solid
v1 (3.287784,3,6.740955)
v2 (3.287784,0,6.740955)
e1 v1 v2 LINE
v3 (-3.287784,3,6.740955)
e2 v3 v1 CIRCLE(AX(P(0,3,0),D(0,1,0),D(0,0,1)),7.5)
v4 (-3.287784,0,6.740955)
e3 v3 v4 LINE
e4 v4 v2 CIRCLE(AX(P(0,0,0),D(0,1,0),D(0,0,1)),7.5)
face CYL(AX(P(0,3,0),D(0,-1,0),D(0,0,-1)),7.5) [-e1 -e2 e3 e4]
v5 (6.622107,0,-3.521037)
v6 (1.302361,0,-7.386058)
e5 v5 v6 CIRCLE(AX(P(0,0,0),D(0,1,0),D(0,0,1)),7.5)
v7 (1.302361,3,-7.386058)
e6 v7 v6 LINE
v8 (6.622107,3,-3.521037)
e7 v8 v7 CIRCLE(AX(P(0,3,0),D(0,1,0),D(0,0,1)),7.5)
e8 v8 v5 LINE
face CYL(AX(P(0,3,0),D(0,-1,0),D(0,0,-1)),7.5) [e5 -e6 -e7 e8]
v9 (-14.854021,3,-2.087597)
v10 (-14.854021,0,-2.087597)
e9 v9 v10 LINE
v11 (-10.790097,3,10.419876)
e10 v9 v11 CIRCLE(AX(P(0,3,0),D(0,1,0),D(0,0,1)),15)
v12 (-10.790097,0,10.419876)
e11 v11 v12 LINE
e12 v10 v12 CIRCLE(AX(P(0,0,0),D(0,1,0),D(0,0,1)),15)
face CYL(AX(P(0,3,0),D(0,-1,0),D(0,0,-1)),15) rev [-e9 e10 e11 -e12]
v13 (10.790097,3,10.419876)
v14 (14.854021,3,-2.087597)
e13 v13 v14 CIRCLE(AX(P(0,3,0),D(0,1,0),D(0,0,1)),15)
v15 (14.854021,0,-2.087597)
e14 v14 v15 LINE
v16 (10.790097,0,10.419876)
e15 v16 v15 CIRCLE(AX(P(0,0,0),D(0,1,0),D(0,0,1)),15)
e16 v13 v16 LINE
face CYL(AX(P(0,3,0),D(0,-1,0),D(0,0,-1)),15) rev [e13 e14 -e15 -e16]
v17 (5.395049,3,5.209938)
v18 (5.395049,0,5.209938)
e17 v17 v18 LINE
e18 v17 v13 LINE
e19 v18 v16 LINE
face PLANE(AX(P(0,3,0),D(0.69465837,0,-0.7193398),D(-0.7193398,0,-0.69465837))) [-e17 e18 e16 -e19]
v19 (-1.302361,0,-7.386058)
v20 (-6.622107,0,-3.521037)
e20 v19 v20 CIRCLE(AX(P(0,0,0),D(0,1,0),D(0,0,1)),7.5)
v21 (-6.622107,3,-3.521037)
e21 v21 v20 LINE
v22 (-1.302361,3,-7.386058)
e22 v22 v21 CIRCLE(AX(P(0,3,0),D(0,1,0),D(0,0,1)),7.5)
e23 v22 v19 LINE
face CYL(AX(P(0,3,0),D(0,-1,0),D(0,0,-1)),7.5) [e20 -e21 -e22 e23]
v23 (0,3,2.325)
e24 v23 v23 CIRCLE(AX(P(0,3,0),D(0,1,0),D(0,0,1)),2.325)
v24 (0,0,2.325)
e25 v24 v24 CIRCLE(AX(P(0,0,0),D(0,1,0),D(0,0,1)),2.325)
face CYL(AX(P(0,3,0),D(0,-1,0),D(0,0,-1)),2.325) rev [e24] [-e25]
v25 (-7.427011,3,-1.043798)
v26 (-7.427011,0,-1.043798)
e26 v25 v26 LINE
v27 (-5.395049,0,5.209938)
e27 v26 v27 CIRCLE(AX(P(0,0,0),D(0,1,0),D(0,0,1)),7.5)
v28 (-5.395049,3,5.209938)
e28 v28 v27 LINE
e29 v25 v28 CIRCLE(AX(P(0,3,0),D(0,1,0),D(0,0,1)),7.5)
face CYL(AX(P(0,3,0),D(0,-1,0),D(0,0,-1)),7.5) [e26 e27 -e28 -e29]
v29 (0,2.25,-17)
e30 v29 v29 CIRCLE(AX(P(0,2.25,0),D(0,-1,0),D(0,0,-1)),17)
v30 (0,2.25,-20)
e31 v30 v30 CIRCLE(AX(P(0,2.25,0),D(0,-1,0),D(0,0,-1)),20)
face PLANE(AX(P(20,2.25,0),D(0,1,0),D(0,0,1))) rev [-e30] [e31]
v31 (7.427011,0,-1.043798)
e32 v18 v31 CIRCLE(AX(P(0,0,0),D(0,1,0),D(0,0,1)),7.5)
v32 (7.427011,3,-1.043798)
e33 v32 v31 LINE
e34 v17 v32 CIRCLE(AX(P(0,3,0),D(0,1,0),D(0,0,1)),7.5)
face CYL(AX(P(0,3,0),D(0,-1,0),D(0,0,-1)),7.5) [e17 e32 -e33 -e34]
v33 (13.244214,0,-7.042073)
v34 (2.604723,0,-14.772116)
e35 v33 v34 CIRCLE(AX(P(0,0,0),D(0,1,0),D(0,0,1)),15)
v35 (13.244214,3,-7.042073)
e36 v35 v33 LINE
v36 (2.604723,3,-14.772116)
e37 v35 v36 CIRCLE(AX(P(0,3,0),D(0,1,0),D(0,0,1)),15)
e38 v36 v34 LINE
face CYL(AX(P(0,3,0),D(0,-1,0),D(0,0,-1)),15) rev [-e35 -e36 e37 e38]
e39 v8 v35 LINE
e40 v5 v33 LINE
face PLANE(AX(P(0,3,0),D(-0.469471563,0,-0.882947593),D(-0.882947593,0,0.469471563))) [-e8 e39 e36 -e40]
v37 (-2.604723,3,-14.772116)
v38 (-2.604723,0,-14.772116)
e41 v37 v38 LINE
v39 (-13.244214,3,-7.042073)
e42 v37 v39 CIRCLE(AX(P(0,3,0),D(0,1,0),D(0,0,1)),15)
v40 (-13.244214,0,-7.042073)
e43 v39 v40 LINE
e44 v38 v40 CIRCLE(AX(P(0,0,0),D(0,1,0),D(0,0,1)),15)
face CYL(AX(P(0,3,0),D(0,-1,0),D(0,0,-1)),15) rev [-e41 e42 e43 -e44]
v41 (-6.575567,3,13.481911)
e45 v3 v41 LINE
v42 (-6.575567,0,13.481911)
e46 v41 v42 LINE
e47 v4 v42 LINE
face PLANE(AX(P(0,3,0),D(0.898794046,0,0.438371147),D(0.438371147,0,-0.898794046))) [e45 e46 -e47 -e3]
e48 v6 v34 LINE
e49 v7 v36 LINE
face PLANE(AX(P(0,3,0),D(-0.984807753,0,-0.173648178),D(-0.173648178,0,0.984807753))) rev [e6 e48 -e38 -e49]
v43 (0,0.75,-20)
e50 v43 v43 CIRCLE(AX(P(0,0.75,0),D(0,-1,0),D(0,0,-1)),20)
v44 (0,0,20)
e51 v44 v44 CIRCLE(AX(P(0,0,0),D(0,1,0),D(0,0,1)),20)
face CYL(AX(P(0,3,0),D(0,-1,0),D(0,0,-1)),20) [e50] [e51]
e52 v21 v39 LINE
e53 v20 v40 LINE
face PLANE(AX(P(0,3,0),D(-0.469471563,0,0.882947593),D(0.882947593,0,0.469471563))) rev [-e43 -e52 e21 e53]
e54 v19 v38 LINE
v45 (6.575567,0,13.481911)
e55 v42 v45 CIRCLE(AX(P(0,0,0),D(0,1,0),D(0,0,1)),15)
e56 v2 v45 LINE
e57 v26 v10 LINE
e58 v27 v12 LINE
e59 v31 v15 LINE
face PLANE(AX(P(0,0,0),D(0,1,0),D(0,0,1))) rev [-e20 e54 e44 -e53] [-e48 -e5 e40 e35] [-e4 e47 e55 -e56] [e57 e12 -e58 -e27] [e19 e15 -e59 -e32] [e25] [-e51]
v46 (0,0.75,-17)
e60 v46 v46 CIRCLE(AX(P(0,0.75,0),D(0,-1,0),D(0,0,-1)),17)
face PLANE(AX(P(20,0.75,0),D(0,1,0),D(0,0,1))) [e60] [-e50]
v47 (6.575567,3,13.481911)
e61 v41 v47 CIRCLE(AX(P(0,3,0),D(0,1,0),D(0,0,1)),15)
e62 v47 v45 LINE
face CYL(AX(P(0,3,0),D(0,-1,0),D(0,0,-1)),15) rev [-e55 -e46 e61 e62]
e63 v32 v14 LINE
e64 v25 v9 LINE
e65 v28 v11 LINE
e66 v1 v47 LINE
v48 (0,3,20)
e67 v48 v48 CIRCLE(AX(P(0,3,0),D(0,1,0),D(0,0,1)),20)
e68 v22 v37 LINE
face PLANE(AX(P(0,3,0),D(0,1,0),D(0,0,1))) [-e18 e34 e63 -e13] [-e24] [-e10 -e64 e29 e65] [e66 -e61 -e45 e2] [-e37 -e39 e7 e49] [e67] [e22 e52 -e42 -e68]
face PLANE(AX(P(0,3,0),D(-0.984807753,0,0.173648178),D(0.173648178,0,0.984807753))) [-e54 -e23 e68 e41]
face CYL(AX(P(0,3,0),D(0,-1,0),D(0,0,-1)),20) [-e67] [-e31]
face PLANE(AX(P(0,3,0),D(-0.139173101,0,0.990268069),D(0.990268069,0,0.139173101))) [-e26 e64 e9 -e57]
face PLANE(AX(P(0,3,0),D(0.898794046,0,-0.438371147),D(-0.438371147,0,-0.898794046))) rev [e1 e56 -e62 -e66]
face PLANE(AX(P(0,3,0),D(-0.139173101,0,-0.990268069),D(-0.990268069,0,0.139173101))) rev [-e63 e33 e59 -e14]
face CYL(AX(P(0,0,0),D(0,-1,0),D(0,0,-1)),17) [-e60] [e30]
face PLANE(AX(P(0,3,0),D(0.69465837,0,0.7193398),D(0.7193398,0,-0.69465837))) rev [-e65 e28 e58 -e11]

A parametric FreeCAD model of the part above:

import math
import FreeCAD as App
import Part
import Sketcher

V = App.Vector
Q = App.Units.Quantity


def add_polygon(sketch, points):
    """Adds a closed chain of lines whose ends are joined by coincident constraints."""
    first, n = sketch.GeometryCount, len(points)
    for a, b in zip(points, points[1:] + points[:1]):
        sketch.addGeometry(Part.LineSegment(App.Vector(*a, 0), App.Vector(*b, 0)), False)
    for i in range(n):
        sketch.addConstraint(Sketcher.Constraint("Coincident", first + i, 2, first + (i + 1) % n, 1))

doc = App.newDocument("Part")
body = doc.addObject("PartDesign::Body", "Body")

# Sketch on XZ plane
sketch1 = body.newObject("Sketcher::SketchObject", "Sketch")
sketch1.AttachmentSupport = (doc.getObject("XZ_Plane"), [""])
sketch1.MapMode = "FlatFace"
sketch1.addGeometry(Part.Circle(V(0, 0, 0), V(0, 0, 1), 20), False)
sketch1.addGeometry(Part.LineSegment(V(-2.604723, -14.772116, 0), V(-1.302361, -7.386058, 0)), False)
sketch1.addGeometry(Part.ArcOfCircle(Part.Circle(V(0, 0, 0), V(0, 0, 1), 7.5), math.radians(-152), math.radians(-100)), False)
sketch1.addGeometry(Part.LineSegment(V(-6.622107, -3.521037, 0), V(-13.244214, -7.042073, 0)), False)
sketch1.addGeometry(Part.ArcOfCircle(Part.Circle(V(0, 0, 0), V(0, 0, 1), 15), math.radians(-152), math.radians(-100)), False)
sketch1.addGeometry(Part.ArcOfCircle(Part.Circle(V(0, 0, 0), V(0, 0, 1), 7.5), math.radians(136), math.radians(188)), False)
sketch1.addGeometry(Part.LineSegment(V(-5.395049, 5.209938, 0), V(-10.790097, 10.419876, 0)), False)
sketch1.addGeometry(Part.ArcOfCircle(Part.Circle(V(0, 0, 0), V(0, 0, 1), 15), math.radians(136), math.radians(188)), False)
sketch1.addGeometry(Part.LineSegment(V(-14.854021, -2.087597, 0), V(-7.427011, -1.043798, 0)), False)
sketch1.addGeometry(Part.ArcOfCircle(Part.Circle(V(0, 0, 0), V(0, 0, 1), 7.5), math.radians(-80), math.radians(-28)), False)
sketch1.addGeometry(Part.LineSegment(V(1.302361, -7.386058, 0), V(2.604723, -14.772116, 0)), False)
sketch1.addGeometry(Part.ArcOfCircle(Part.Circle(V(0, 0, 0), V(0, 0, 1), 15), math.radians(-80), math.radians(-28)), False)
sketch1.addGeometry(Part.LineSegment(V(13.244214, -7.042073, 0), V(6.622107, -3.521037, 0)), False)
sketch1.addGeometry(Part.Circle(V(0, 0, 0), V(0, 0, 1), 2.325), False)
sketch1.addGeometry(Part.ArcOfCircle(Part.Circle(V(0, 0, 0), V(0, 0, 1), 7.5), math.radians(64), math.radians(116)), False)
sketch1.addGeometry(Part.LineSegment(V(3.287784, 6.740955, 0), V(6.575567, 13.481911, 0)), False)
sketch1.addGeometry(Part.ArcOfCircle(Part.Circle(V(0, 0, 0), V(0, 0, 1), 15), math.radians(64), math.radians(116)), False)
sketch1.addGeometry(Part.LineSegment(V(-6.575567, 13.481911, 0), V(-3.287784, 6.740955, 0)), False)
sketch1.addGeometry(Part.ArcOfCircle(Part.Circle(V(0, 0, 0), V(0, 0, 1), 7.5), math.radians(-8), math.radians(44)), False)
sketch1.addGeometry(Part.LineSegment(V(7.427011, -1.043798, 0), V(14.854021, -2.087597, 0)), False)
sketch1.addGeometry(Part.ArcOfCircle(Part.Circle(V(0, 0, 0), V(0, 0, 1), 15), math.radians(-8), math.radians(44)), False)
sketch1.addGeometry(Part.LineSegment(V(10.790097, 10.419876, 0), V(5.395049, 5.209938, 0)), False)
sketch1.addConstraint(Sketcher.Constraint("Coincident", 1, 2, 2, 2))
sketch1.addConstraint(Sketcher.Constraint("Coincident", 2, 1, 3, 1))
sketch1.addConstraint(Sketcher.Constraint("Coincident", 3, 2, 4, 1))
sketch1.addConstraint(Sketcher.Constraint("Coincident", 4, 2, 1, 1))
sketch1.addConstraint(Sketcher.Constraint("Coincident", 5, 1, 6, 1))
sketch1.addConstraint(Sketcher.Constraint("Coincident", 6, 2, 7, 1))
sketch1.addConstraint(Sketcher.Constraint("Coincident", 7, 2, 8, 1))
sketch1.addConstraint(Sketcher.Constraint("Coincident", 8, 2, 5, 2))
sketch1.addConstraint(Sketcher.Constraint("Coincident", 9, 1, 10, 1))
sketch1.addConstraint(Sketcher.Constraint("Coincident", 10, 2, 11, 1))
sketch1.addConstraint(Sketcher.Constraint("Coincident", 11, 2, 12, 1))
sketch1.addConstraint(Sketcher.Constraint("Coincident", 12, 2, 9, 2))
sketch1.addConstraint(Sketcher.Constraint("Coincident", 14, 1, 15, 1))
sketch1.addConstraint(Sketcher.Constraint("Coincident", 15, 2, 16, 1))
sketch1.addConstraint(Sketcher.Constraint("Coincident", 16, 2, 17, 1))
sketch1.addConstraint(Sketcher.Constraint("Coincident", 17, 2, 14, 2))
sketch1.addConstraint(Sketcher.Constraint("Coincident", 18, 1, 19, 1))
sketch1.addConstraint(Sketcher.Constraint("Coincident", 19, 2, 20, 1))
sketch1.addConstraint(Sketcher.Constraint("Coincident", 20, 2, 21, 1))
sketch1.addConstraint(Sketcher.Constraint("Coincident", 21, 2, 18, 2))
sketch1.addConstraint(Sketcher.Constraint("Coincident", 0, 3, -1, 1))
sketch1.addConstraint(Sketcher.Constraint("Coincident", 2, 3, -1, 1))
sketch1.addConstraint(Sketcher.Constraint("Coincident", 4, 3, -1, 1))
sketch1.addConstraint(Sketcher.Constraint("Coincident", 5, 3, -1, 1))
sketch1.addConstraint(Sketcher.Constraint("Coincident", 7, 3, -1, 1))
sketch1.addConstraint(Sketcher.Constraint("Coincident", 9, 3, -1, 1))
sketch1.addConstraint(Sketcher.Constraint("Coincident", 11, 3, -1, 1))
sketch1.addConstraint(Sketcher.Constraint("Coincident", 13, 3, -1, 1))
sketch1.addConstraint(Sketcher.Constraint("Coincident", 14, 3, -1, 1))
sketch1.addConstraint(Sketcher.Constraint("Coincident", 16, 3, -1, 1))
sketch1.addConstraint(Sketcher.Constraint("Coincident", 18, 3, -1, 1))
sketch1.addConstraint(Sketcher.Constraint("Coincident", 20, 3, -1, 1))
sketch1.addConstraint(Sketcher.Constraint("Equal", 2, 5))
sketch1.addConstraint(Sketcher.Constraint("Equal", 4, 7))
sketch1.addConstraint(Sketcher.Constraint("Equal", 5, 9))
sketch1.addConstraint(Sketcher.Constraint("Equal", 7, 11))
sketch1.addConstraint(Sketcher.Constraint("Equal", 9, 14))
sketch1.addConstraint(Sketcher.Constraint("Equal", 11, 16))
sketch1.addConstraint(Sketcher.Constraint("Equal", 14, 18))
sketch1.addConstraint(Sketcher.Constraint("Equal", 16, 20))
sketch1.addConstraint(Sketcher.Constraint("Horizontal", 1, 2, 9, 1))
sketch1.addConstraint(Sketcher.Constraint("Horizontal", 4, 2, 10, 2))
sketch1.addConstraint(Sketcher.Constraint("Horizontal", 3, 2, 11, 2))
sketch1.addConstraint(Sketcher.Constraint("Horizontal", 2, 1, 12, 2))
sketch1.addConstraint(Sketcher.Constraint("Horizontal", 15, 2, 16, 2))
sketch1.addConstraint(Sketcher.Constraint("Horizontal", 14, 1, 17, 2))
sketch1.addConstraint(Sketcher.Constraint("Horizontal", 8, 2, 18, 1))
sketch1.addConstraint(Sketcher.Constraint("Horizontal", 7, 2, 19, 2))
sketch1.addConstraint(Sketcher.Constraint("Horizontal", 6, 2, 20, 2))
sketch1.addConstraint(Sketcher.Constraint("Horizontal", 5, 1, 21, 2))
sketch1.addConstraint(Sketcher.Constraint("Diameter", 0, 40.0))
sketch1.addConstraint(Sketcher.Constraint("Radius", 4, 15.0))
sketch1.addConstraint(Sketcher.Constraint("Radius", 2, 7.5))
sketch1.addConstraint(Sketcher.Constraint("Diameter", 13, 4.65))
sketch1.addConstraint(Sketcher.Constraint("Angle", 1, Q("80 deg")))
sketch1.addConstraint(Sketcher.Constraint("Angle", 3, Q("-152 deg")))
sketch1.addConstraint(Sketcher.Constraint("Angle", 6, Q("136 deg")))
sketch1.addConstraint(Sketcher.Constraint("Angle", 8, Q("8 deg")))
sketch1.addConstraint(Sketcher.Constraint("Angle", 15, Q("64 deg")))
sketch1.addConstraint(Sketcher.Constraint("DistanceY", 8, 2, -1, 1, 1.043798))
sketch1.addConstraint(Sketcher.Constraint("DistanceX", 1, 2, -1, 1, 1.302361))
sketch1.addConstraint(Sketcher.Constraint("DistanceX", 5, 1, -1, 1, 5.395049))
sketch1.addConstraint(Sketcher.Constraint("DistanceY", -1, 1, 15, 2, 13.481911))
sketch1.addConstraint(Sketcher.Constraint("DistanceY", 1, 2, 2, 1, 3.865021))
pad1 = body.newObject("PartDesign::Pad", "Pad")
pad1.Profile = sketch1
pad1.Length = 3
pad1.Reversed = True

# Sketch on XY plane
sketch2 = body.newObject("Sketcher::SketchObject", "Sketch001")
sketch2.AttachmentSupport = (doc.getObject("XY_Plane"), [""])
sketch2.MapMode = "FlatFace"
add_polygon(sketch2, [(17, 2.25), (17, 0.75), (20, 0.75), (20, 2.25)])  # lines 0-3
sketch2.addConstraint(Sketcher.Constraint("Vertical", 0))
sketch2.addConstraint(Sketcher.Constraint("Horizontal", 1))
sketch2.addConstraint(Sketcher.Constraint("Vertical", 2))
sketch2.addConstraint(Sketcher.Constraint("Horizontal", 3))
sketch2.addConstraint(Sketcher.Constraint("DistanceX", 1, 1, 1, 2, 3.0))
sketch2.addConstraint(Sketcher.Constraint("DistanceY", 0, 2, 0, 1, 1.5))
sketch2.addConstraint(Sketcher.Constraint("DistanceX", -1, 1, 0, 2, 17.0))
sketch2.addConstraint(Sketcher.Constraint("DistanceY", -1, 1, 0, 2, 0.75))
groove = body.newObject("PartDesign::Groove", "Groove")
groove.Profile = sketch2
groove.ReferenceAxis = (sketch2, ["V_Axis"])
groove.Angle = 360

doc.recompute()
